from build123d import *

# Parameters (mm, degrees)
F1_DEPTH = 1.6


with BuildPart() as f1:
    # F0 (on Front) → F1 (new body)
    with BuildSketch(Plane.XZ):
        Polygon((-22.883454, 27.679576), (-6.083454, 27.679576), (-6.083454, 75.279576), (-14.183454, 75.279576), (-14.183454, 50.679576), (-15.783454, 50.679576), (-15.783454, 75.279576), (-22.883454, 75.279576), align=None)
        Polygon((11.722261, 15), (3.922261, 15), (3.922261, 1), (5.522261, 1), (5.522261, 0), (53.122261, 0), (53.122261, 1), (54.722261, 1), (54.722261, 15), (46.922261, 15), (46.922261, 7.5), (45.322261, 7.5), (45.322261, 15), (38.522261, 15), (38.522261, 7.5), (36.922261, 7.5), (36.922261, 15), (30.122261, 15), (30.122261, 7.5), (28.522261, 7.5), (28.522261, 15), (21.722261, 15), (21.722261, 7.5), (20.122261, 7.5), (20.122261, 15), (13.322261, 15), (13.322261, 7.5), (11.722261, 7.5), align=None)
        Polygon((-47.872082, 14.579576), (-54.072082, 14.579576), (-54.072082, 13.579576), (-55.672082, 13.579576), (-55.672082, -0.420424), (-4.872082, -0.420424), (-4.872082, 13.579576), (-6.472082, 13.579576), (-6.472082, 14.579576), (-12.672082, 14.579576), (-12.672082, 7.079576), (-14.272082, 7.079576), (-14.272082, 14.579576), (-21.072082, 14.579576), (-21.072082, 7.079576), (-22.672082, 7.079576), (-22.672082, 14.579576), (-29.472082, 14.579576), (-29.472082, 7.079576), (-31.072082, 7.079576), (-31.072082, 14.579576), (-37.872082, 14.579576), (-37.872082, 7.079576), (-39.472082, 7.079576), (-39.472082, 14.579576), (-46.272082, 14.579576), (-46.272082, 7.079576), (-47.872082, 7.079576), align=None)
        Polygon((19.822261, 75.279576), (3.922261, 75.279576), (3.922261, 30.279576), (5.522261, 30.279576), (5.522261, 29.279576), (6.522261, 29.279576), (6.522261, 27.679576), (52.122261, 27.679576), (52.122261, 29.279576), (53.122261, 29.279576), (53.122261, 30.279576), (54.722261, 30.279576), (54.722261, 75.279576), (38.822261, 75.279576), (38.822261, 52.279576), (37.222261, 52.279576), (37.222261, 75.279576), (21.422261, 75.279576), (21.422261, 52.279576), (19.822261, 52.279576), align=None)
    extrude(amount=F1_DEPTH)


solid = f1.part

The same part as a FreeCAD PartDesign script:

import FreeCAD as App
import Part
import Sketcher

V = App.Vector


def add_polygon(sketch, points):
    """Adds a closed chain of lines whose ends are joined by coincident constraints."""
    first, n = sketch.GeometryCount, len(points)
    for a, b in zip(points, points[1:] + points[:1]):
        sketch.addGeometry(Part.LineSegment(App.Vector(*a, 0), App.Vector(*b, 0)), False)
    for i in range(n):
        sketch.addConstraint(Sketcher.Constraint("Coincident", first + i, 2, first + (i + 1) % n, 1))

doc = App.newDocument("Part")
body = doc.addObject("PartDesign::Body", "Body")
body.AllowCompound = True

# Sketch on XZ plane
sketch1 = doc.addObject("Sketcher::SketchObject", "Sketch")
body.addObject(sketch1)
sketch1.AttachmentSupport = (doc.XZ_Plane, [""])
sketch1.MapMode = "FlatFace"
add_polygon(sketch1, [(-22.9, 27.7), (-6.1, 27.7), (-6.1, 75.3), (-14.2, 75.3), (-14.2, 50.7), (-15.8, 50.7), (-15.8, 75.3), (-22.9, 75.3)])  # lines 0-7
add_polygon(sketch1, [(11.7, 15), (3.9, 15), (3.9, 1), (5.5, 1), (5.5, 0), (53.1, 0), (53.1, 1), (54.7, 1), (54.7, 15), (46.9, 15), (46.9, 7.5), (45.3, 7.5), (45.3, 15), (38.5, 15), (38.5, 7.5), (36.9, 7.5), (36.9, 15), (30.1, 15), (30.1, 7.5), (28.5, 7.5), (28.5, 15), (21.7, 15), (21.7, 7.5), (20.1, 7.5), (20.1, 15), (13.3, 15), (13.3, 7.5), (11.7, 7.5)])  # lines 8-35
add_polygon(sketch1, [(-47.9, 14.6), (-54.1, 14.6), (-54.1, 13.6), (-55.7, 13.6), (-55.7, -0.4), (-4.9, -0.4), (-4.9, 13.6), (-6.5, 13.6), (-6.5, 14.6), (-12.7, 14.6), (-12.7, 7.1), (-14.3, 7.1), (-14.3, 14.6), (-21.1, 14.6), (-21.1, 7.1), (-22.7, 7.1), (-22.7, 14.6), (-29.5, 14.6), (-29.5, 7.1), (-31.1, 7.1), (-31.1, 14.6), (-37.9, 14.6), (-37.9, 7.1), (-39.5, 7.1), (-39.5, 14.6), (-46.3, 14.6), (-46.3, 7.1), (-47.9, 7.1)])  # lines 36-63
add_polygon(sketch1, [(19.8, 75.3), (3.9, 75.3), (3.9, 30.3), (5.5, 30.3), (5.5, 29.3), (6.5, 29.3), (6.5, 27.7), (52.1, 27.7), (52.1, 29.3), (53.1, 29.3), (53.1, 30.3), (54.7, 30.3), (54.7, 75.3), (38.8, 75.3), (38.8, 52.3), (37.2, 52.3), (37.2, 75.3), (21.4, 75.3), (21.4, 52.3), (19.8, 52.3)])  # lines 64-83
sketch1.addConstraint(Sketcher.Constraint("Horizontal", 0))
sketch1.addConstraint(Sketcher.Constraint("Vertical", 1))
sketch1.addConstraint(Sketcher.Constraint("Horizontal", 2))
sketch1.addConstraint(Sketcher.Constraint("Vertical", 3))
sketch1.addConstraint(Sketcher.Constraint("Horizontal", 4))
sketch1.addConstraint(Sketcher.Constraint("Vertical", 5))
sketch1.addConstraint(Sketcher.Constraint("Horizontal", 6))
sketch1.addConstraint(Sketcher.Constraint("Vertical", 7))
sketch1.addConstraint(Sketcher.Constraint("Horizontal", 8))
sketch1.addConstraint(Sketcher.Constraint("Vertical", 9))
sketch1.addConstraint(Sketcher.Constraint("Horizontal", 10))
sketch1.addConstraint(Sketcher.Constraint("Vertical", 11))
sketch1.addConstraint(Sketcher.Constraint("Horizontal", 12))
sketch1.addConstraint(Sketcher.Constraint("Vertical", 13))
sketch1.addConstraint(Sketcher.Constraint("Horizontal", 14))
sketch1.addConstraint(Sketcher.Constraint("Vertical", 15))
sketch1.addConstraint(Sketcher.Constraint("Horizontal", 16))
sketch1.addConstraint(Sketcher.Constraint("Vertical", 17))
sketch1.addConstraint(Sketcher.Constraint("Horizontal", 18))
sketch1.addConstraint(Sketcher.Constraint("Vertical", 19))
sketch1.addConstraint(Sketcher.Constraint("Horizontal", 20))
sketch1.addConstraint(Sketcher.Constraint("Vertical", 21))
sketch1.addConstraint(Sketcher.Constraint("Horizontal", 22))
sketch1.addConstraint(Sketcher.Constraint("Vertical", 23))
sketch1.addConstraint(Sketcher.Constraint("Horizontal", 24))
sketch1.addConstraint(Sketcher.Constraint("Vertical", 25))
sketch1.addConstraint(Sketcher.Constraint("Horizontal", 26))
sketch1.addConstraint(Sketcher.Constraint("Vertical", 27))
sketch1.addConstraint(Sketcher.Constraint("Horizontal", 28))
sketch1.addConstraint(Sketcher.Constraint("Vertical", 29))
sketch1.addConstraint(Sketcher.Constraint("Horizontal", 30))
sketch1.addConstraint(Sketcher.Constraint("Vertical", 31))
sketch1.addConstraint(Sketcher.Constraint("Horizontal", 32))
sketch1.addConstraint(Sketcher.Constraint("Vertical", 33))
sketch1.addConstraint(Sketcher.Constraint("Horizontal", 34))
sketch1.addConstraint(Sketcher.Constraint("Vertical", 35))
sketch1.addConstraint(Sketcher.Constraint("Horizontal", 36))
sketch1.addConstraint(Sketcher.Constraint("Vertical", 37))
sketch1.addConstraint(Sketcher.Constraint("Horizontal", 38))
sketch1.addConstraint(Sketcher.Constraint("Vertical", 39))
sketch1.addConstraint(Sketcher.Constraint("Horizontal", 40))
sketch1.addConstraint(Sketcher.Constraint("Vertical", 41))
sketch1.addConstraint(Sketcher.Constraint("Horizontal", 42))
sketch1.addConstraint(Sketcher.Constraint("Vertical", 43))
sketch1.addConstraint(Sketcher.Constraint("Horizontal", 44))
sketch1.addConstraint(Sketcher.Constraint("Vertical", 45))
sketch1.addConstraint(Sketcher.Constraint("Horizontal", 46))
sketch1.addConstraint(Sketcher.Constraint("Vertical", 47))
sketch1.addConstraint(Sketcher.Constraint("Horizontal", 48))
sketch1.addConstraint(Sketcher.Constraint("Vertical", 49))
sketch1.addConstraint(Sketcher.Constraint("Horizontal", 50))
sketch1.addConstraint(Sketcher.Constraint("Vertical", 51))
sketch1.addConstraint(Sketcher.Constraint("Horizontal", 52))
sketch1.addConstraint(Sketcher.Constraint("Vertical", 53))
sketch1.addConstraint(Sketcher.Constraint("Horizontal", 54))
sketch1.addConstraint(Sketcher.Constraint("Vertical", 55))
sketch1.addConstraint(Sketcher.Constraint("Horizontal", 56))
sketch1.addConstraint(Sketcher.Constraint("Vertical", 57))
sketch1.addConstraint(Sketcher.Constraint("Horizontal", 58))
sketch1.addConstraint(Sketcher.Constraint("Vertical", 59))
sketch1.addConstraint(Sketcher.Constraint("Horizontal", 60))
sketch1.addConstraint(Sketcher.Constraint("Vertical", 61))
sketch1.addConstraint(Sketcher.Constraint("Horizontal", 62))
sketch1.addConstraint(Sketcher.Constraint("Vertical", 63))
sketch1.addConstraint(Sketcher.Constraint("Horizontal", 64))
sketch1.addConstraint(Sketcher.Constraint("Vertical", 65))
sketch1.addConstraint(Sketcher.Constraint("Horizontal", 66))
sketch1.addConstraint(Sketcher.Constraint("Vertical", 67))
sketch1.addConstraint(Sketcher.Constraint("Horizontal", 68))
sketch1.addConstraint(Sketcher.Constraint("Vertical", 69))
sketch1.addConstraint(Sketcher.Constraint("Horizontal", 70))
sketch1.addConstraint(Sketcher.Constraint("Vertical", 71))
sketch1.addConstraint(Sketcher.Constraint("Horizontal", 72))
sketch1.addConstraint(Sketcher.Constraint("Vertical", 73))
sketch1.addConstraint(Sketcher.Constraint("Horizontal", 74))
sketch1.addConstraint(Sketcher.Constraint("Vertical", 75))
sketch1.addConstraint(Sketcher.Constraint("Horizontal", 76))
sketch1.addConstraint(Sketcher.Constraint("Vertical", 77))
sketch1.addConstraint(Sketcher.Constraint("Horizontal", 78))
sketch1.addConstraint(Sketcher.Constraint("Vertical", 79))
sketch1.addConstraint(Sketcher.Constraint("Horizontal", 80))
sketch1.addConstraint(Sketcher.Constraint("Vertical", 81))
sketch1.addConstraint(Sketcher.Constraint("Horizontal", 82))
sketch1.addConstraint(Sketcher.Constraint("Vertical", 83))
sketch1.addConstraint(Sketcher.Constraint("PointOnObject", 11, 2, -1))
sketch1.addConstraint(Sketcher.Constraint("Horizontal", 2, 2, 5, 2))
sketch1.addConstraint(Sketcher.Constraint("Horizontal", 10, 2, 13, 2))
sketch1.addConstraint(Sketcher.Constraint("Horizontal", 8, 2, 15, 2))
sketch1.addConstraint(Sketcher.Constraint("Horizontal", 16, 2, 19, 2))
sketch1.addConstraint(Sketcher.Constraint("Horizontal", 18, 2, 21, 2))
sketch1.addConstraint(Sketcher.Constraint("Horizontal", 20, 2, 23, 2))
sketch1.addConstraint(Sketcher.Constraint("Horizontal", 22, 2, 25, 2))
sketch1.addConstraint(Sketcher.Constraint("Horizontal", 24, 2, 27, 2))
sketch1.addConstraint(Sketcher.Constraint("Horizontal", 26, 2, 29, 2))
sketch1.addConstraint(Sketcher.Constraint("Horizontal", 28, 2, 31, 2))
sketch1.addConstraint(Sketcher.Constraint("Horizontal", 30, 2, 33, 2))
sketch1.addConstraint(Sketcher.Constraint("Horizontal", 38, 2, 41, 2))
sketch1.addConstraint(Sketcher.Constraint("Horizontal", 36, 2, 43, 2))
sketch1.addConstraint(Sketcher.Constraint("Horizontal", 44, 2, 47, 2))
sketch1.addConstraint(Sketcher.Constraint("Horizontal", 46, 2, 49, 2))
sketch1.addConstraint(Sketcher.Constraint("Horizontal", 48, 2, 51, 2))
sketch1.addConstraint(Sketcher.Constraint("Horizontal", 50, 2, 53, 2))
sketch1.addConstraint(Sketcher.Constraint("Horizontal", 52, 2, 55, 2))
sketch1.addConstraint(Sketcher.Constraint("Horizontal", 54, 2, 57, 2))
sketch1.addConstraint(Sketcher.Constraint("Horizontal", 56, 2, 59, 2))
sketch1.addConstraint(Sketcher.Constraint("Horizontal", 58, 2, 61, 2))
sketch1.addConstraint(Sketcher.Constraint("Horizontal", 6, 2, 64, 2))
sketch1.addConstraint(Sketcher.Constraint("Horizontal", 7, 2, 69, 2))
sketch1.addConstraint(Sketcher.Constraint("Horizontal", 68, 2, 71, 2))
sketch1.addConstraint(Sketcher.Constraint("Horizontal", 66, 2, 73, 2))
sketch1.addConstraint(Sketcher.Constraint("Horizontal", 64, 2, 75, 2))
sketch1.addConstraint(Sketcher.Constraint("Horizontal", 76, 2, 79, 2))
sketch1.addConstraint(Sketcher.Constraint("Horizontal", 78, 2, 81, 2))
sketch1.addConstraint(Sketcher.Constraint("Vertical", 9, 2, 64, 2))
sketch1.addConstraint(Sketcher.Constraint("Vertical", 11, 2, 66, 2))
sketch1.addConstraint(Sketcher.Constraint("Vertical", 13, 2, 72, 2))
sketch1.addConstraint(Sketcher.Constraint("Vertical", 15, 2, 74, 2))
sketch1.addConstraint(Sketcher.Constraint("Equal", 4, 10))
sketch1.addConstraint(Sketcher.Constraint("Equal", 10, 14))
sketch1.addConstraint(Sketcher.Constraint("Equal", 8, 16))
sketch1.addConstraint(Sketcher.Constraint("Equal", 14, 18))
sketch1.addConstraint(Sketcher.Constraint("Equal", 18, 22))
sketch1.addConstraint(Sketcher.Constraint("Equal", 20, 24))
sketch1.addConstraint(Sketcher.Constraint("Equal", 22, 26))
sketch1.addConstraint(Sketcher.Constraint("Equal", 24, 28))
sketch1.addConstraint(Sketcher.Constraint("Equal", 26, 30))
sketch1.addConstraint(Sketcher.Constraint("Equal", 28, 32))
sketch1.addConstraint(Sketcher.Constraint("Equal", 30, 34))
sketch1.addConstraint(Sketcher.Constraint("Equal", 34, 38))
sketch1.addConstraint(Sketcher.Constraint("Equal", 38, 42))
sketch1.addConstraint(Sketcher.Constraint("Equal", 36, 44))
sketch1.addConstraint(Sketcher.Constraint("Equal", 42, 46))
sketch1.addConstraint(Sketcher.Constraint("Equal", 32, 48))
sketch1.addConstraint(Sketcher.Constraint("Equal", 46, 50))
sketch1.addConstraint(Sketcher.Constraint("Equal", 48, 52))
sketch1.addConstraint(Sketcher.Constraint("Equal", 50, 54))
sketch1.addConstraint(Sketcher.Constraint("Equal", 52, 56))
sketch1.addConstraint(Sketcher.Constraint("Equal", 54, 58))
sketch1.addConstraint(Sketcher.Constraint("Equal", 56, 60))
sketch1.addConstraint(Sketcher.Constraint("Equal", 58, 62))
sketch1.addConstraint(Sketcher.Constraint("Equal", 68, 72))
sketch1.addConstraint(Sketcher.Constraint("Equal", 64, 76))
sketch1.addConstraint(Sketcher.Constraint("Equal", 74, 78))
sketch1.addConstraint(Sketcher.Constraint("Equal", 78, 82))
sketch1.addConstraint(Sketcher.Constraint("Equal", 12, 1))
sketch1.addConstraint(Sketcher.Constraint("Equal", 72, 11))
sketch1.addConstraint(Sketcher.Constraint("Equal", 13, 37))
sketch1.addConstraint(Sketcher.Constraint("Equal", 15, 39))
sketch1.addConstraint(Sketcher.Constraint("Equal", 35, 45))
sketch1.addConstraint(Sketcher.Constraint("Equal", 43, 67))
sketch1.addConstraint(Sketcher.Constraint("Equal", 82, 69))
sketch1.addConstraint(Sketcher.Constraint("DistanceX", 68, 1, 68, 2, 1.0))
sketch1.addConstraint(Sketcher.Constraint("DistanceY", 9, 2, 9, 1, 14.0))
sketch1.addConstraint(Sketcher.Constraint("DistanceY", 65, 2, 65, 1, 45.0))
sketch1.addConstraint(Sketcher.Constraint("DistanceY", 77, 2, 77, 1, 23.0))
sketch1.addConstraint(Sketcher.Constraint("DistanceX", 0, 1, 0, 2, 16.8))
sketch1.addConstraint(Sketcher.Constraint("DistanceX", 2, 2, 2, 1, 8.1))
sketch1.addConstraint(Sketcher.Constraint("DistanceX", 4, 2, 4, 1, 1.6))
sketch1.addConstraint(Sketcher.Constraint("DistanceX", 8, 2, 8, 1, 7.8))
sketch1.addConstraint(Sketcher.Constraint("DistanceX", 36, 2, 36, 1, 6.2))
sketch1.addConstraint(Sketcher.Constraint("DistanceX", 64, 2, 64, 1, 15.9))
sketch1.addConstraint(Sketcher.Constraint("DistanceY", 3, 2, 3, 1, 24.6))
sketch1.addConstraint(Sketcher.Constraint("DistanceY", 17, 2, 17, 1, 7.5))
sketch1.addConstraint(Sketcher.Constraint("DistanceX", -1, 1, 8, 2, 3.922261))
sketch1.addConstraint(Sketcher.Constraint("DistanceX", 40, 2, -1, 1, 4.872082))
sketch1.addConstraint(Sketcher.Constraint("DistanceX", 0, 2, -1, 1, 6.083454))
sketch1.addConstraint(Sketcher.Constraint("DistanceY", -1, 1, 0, 2, 27.679576))
sketch1.addConstraint(Sketcher.Constraint("DistanceY", -1, 1, 36, 2, 14.579576))
pad1 = doc.addObject("PartDesign::Pad", "Pad")
body.addObject(pad1)
pad1.Profile = sketch1
pad1.Length = 1.6

doc.recompute()
